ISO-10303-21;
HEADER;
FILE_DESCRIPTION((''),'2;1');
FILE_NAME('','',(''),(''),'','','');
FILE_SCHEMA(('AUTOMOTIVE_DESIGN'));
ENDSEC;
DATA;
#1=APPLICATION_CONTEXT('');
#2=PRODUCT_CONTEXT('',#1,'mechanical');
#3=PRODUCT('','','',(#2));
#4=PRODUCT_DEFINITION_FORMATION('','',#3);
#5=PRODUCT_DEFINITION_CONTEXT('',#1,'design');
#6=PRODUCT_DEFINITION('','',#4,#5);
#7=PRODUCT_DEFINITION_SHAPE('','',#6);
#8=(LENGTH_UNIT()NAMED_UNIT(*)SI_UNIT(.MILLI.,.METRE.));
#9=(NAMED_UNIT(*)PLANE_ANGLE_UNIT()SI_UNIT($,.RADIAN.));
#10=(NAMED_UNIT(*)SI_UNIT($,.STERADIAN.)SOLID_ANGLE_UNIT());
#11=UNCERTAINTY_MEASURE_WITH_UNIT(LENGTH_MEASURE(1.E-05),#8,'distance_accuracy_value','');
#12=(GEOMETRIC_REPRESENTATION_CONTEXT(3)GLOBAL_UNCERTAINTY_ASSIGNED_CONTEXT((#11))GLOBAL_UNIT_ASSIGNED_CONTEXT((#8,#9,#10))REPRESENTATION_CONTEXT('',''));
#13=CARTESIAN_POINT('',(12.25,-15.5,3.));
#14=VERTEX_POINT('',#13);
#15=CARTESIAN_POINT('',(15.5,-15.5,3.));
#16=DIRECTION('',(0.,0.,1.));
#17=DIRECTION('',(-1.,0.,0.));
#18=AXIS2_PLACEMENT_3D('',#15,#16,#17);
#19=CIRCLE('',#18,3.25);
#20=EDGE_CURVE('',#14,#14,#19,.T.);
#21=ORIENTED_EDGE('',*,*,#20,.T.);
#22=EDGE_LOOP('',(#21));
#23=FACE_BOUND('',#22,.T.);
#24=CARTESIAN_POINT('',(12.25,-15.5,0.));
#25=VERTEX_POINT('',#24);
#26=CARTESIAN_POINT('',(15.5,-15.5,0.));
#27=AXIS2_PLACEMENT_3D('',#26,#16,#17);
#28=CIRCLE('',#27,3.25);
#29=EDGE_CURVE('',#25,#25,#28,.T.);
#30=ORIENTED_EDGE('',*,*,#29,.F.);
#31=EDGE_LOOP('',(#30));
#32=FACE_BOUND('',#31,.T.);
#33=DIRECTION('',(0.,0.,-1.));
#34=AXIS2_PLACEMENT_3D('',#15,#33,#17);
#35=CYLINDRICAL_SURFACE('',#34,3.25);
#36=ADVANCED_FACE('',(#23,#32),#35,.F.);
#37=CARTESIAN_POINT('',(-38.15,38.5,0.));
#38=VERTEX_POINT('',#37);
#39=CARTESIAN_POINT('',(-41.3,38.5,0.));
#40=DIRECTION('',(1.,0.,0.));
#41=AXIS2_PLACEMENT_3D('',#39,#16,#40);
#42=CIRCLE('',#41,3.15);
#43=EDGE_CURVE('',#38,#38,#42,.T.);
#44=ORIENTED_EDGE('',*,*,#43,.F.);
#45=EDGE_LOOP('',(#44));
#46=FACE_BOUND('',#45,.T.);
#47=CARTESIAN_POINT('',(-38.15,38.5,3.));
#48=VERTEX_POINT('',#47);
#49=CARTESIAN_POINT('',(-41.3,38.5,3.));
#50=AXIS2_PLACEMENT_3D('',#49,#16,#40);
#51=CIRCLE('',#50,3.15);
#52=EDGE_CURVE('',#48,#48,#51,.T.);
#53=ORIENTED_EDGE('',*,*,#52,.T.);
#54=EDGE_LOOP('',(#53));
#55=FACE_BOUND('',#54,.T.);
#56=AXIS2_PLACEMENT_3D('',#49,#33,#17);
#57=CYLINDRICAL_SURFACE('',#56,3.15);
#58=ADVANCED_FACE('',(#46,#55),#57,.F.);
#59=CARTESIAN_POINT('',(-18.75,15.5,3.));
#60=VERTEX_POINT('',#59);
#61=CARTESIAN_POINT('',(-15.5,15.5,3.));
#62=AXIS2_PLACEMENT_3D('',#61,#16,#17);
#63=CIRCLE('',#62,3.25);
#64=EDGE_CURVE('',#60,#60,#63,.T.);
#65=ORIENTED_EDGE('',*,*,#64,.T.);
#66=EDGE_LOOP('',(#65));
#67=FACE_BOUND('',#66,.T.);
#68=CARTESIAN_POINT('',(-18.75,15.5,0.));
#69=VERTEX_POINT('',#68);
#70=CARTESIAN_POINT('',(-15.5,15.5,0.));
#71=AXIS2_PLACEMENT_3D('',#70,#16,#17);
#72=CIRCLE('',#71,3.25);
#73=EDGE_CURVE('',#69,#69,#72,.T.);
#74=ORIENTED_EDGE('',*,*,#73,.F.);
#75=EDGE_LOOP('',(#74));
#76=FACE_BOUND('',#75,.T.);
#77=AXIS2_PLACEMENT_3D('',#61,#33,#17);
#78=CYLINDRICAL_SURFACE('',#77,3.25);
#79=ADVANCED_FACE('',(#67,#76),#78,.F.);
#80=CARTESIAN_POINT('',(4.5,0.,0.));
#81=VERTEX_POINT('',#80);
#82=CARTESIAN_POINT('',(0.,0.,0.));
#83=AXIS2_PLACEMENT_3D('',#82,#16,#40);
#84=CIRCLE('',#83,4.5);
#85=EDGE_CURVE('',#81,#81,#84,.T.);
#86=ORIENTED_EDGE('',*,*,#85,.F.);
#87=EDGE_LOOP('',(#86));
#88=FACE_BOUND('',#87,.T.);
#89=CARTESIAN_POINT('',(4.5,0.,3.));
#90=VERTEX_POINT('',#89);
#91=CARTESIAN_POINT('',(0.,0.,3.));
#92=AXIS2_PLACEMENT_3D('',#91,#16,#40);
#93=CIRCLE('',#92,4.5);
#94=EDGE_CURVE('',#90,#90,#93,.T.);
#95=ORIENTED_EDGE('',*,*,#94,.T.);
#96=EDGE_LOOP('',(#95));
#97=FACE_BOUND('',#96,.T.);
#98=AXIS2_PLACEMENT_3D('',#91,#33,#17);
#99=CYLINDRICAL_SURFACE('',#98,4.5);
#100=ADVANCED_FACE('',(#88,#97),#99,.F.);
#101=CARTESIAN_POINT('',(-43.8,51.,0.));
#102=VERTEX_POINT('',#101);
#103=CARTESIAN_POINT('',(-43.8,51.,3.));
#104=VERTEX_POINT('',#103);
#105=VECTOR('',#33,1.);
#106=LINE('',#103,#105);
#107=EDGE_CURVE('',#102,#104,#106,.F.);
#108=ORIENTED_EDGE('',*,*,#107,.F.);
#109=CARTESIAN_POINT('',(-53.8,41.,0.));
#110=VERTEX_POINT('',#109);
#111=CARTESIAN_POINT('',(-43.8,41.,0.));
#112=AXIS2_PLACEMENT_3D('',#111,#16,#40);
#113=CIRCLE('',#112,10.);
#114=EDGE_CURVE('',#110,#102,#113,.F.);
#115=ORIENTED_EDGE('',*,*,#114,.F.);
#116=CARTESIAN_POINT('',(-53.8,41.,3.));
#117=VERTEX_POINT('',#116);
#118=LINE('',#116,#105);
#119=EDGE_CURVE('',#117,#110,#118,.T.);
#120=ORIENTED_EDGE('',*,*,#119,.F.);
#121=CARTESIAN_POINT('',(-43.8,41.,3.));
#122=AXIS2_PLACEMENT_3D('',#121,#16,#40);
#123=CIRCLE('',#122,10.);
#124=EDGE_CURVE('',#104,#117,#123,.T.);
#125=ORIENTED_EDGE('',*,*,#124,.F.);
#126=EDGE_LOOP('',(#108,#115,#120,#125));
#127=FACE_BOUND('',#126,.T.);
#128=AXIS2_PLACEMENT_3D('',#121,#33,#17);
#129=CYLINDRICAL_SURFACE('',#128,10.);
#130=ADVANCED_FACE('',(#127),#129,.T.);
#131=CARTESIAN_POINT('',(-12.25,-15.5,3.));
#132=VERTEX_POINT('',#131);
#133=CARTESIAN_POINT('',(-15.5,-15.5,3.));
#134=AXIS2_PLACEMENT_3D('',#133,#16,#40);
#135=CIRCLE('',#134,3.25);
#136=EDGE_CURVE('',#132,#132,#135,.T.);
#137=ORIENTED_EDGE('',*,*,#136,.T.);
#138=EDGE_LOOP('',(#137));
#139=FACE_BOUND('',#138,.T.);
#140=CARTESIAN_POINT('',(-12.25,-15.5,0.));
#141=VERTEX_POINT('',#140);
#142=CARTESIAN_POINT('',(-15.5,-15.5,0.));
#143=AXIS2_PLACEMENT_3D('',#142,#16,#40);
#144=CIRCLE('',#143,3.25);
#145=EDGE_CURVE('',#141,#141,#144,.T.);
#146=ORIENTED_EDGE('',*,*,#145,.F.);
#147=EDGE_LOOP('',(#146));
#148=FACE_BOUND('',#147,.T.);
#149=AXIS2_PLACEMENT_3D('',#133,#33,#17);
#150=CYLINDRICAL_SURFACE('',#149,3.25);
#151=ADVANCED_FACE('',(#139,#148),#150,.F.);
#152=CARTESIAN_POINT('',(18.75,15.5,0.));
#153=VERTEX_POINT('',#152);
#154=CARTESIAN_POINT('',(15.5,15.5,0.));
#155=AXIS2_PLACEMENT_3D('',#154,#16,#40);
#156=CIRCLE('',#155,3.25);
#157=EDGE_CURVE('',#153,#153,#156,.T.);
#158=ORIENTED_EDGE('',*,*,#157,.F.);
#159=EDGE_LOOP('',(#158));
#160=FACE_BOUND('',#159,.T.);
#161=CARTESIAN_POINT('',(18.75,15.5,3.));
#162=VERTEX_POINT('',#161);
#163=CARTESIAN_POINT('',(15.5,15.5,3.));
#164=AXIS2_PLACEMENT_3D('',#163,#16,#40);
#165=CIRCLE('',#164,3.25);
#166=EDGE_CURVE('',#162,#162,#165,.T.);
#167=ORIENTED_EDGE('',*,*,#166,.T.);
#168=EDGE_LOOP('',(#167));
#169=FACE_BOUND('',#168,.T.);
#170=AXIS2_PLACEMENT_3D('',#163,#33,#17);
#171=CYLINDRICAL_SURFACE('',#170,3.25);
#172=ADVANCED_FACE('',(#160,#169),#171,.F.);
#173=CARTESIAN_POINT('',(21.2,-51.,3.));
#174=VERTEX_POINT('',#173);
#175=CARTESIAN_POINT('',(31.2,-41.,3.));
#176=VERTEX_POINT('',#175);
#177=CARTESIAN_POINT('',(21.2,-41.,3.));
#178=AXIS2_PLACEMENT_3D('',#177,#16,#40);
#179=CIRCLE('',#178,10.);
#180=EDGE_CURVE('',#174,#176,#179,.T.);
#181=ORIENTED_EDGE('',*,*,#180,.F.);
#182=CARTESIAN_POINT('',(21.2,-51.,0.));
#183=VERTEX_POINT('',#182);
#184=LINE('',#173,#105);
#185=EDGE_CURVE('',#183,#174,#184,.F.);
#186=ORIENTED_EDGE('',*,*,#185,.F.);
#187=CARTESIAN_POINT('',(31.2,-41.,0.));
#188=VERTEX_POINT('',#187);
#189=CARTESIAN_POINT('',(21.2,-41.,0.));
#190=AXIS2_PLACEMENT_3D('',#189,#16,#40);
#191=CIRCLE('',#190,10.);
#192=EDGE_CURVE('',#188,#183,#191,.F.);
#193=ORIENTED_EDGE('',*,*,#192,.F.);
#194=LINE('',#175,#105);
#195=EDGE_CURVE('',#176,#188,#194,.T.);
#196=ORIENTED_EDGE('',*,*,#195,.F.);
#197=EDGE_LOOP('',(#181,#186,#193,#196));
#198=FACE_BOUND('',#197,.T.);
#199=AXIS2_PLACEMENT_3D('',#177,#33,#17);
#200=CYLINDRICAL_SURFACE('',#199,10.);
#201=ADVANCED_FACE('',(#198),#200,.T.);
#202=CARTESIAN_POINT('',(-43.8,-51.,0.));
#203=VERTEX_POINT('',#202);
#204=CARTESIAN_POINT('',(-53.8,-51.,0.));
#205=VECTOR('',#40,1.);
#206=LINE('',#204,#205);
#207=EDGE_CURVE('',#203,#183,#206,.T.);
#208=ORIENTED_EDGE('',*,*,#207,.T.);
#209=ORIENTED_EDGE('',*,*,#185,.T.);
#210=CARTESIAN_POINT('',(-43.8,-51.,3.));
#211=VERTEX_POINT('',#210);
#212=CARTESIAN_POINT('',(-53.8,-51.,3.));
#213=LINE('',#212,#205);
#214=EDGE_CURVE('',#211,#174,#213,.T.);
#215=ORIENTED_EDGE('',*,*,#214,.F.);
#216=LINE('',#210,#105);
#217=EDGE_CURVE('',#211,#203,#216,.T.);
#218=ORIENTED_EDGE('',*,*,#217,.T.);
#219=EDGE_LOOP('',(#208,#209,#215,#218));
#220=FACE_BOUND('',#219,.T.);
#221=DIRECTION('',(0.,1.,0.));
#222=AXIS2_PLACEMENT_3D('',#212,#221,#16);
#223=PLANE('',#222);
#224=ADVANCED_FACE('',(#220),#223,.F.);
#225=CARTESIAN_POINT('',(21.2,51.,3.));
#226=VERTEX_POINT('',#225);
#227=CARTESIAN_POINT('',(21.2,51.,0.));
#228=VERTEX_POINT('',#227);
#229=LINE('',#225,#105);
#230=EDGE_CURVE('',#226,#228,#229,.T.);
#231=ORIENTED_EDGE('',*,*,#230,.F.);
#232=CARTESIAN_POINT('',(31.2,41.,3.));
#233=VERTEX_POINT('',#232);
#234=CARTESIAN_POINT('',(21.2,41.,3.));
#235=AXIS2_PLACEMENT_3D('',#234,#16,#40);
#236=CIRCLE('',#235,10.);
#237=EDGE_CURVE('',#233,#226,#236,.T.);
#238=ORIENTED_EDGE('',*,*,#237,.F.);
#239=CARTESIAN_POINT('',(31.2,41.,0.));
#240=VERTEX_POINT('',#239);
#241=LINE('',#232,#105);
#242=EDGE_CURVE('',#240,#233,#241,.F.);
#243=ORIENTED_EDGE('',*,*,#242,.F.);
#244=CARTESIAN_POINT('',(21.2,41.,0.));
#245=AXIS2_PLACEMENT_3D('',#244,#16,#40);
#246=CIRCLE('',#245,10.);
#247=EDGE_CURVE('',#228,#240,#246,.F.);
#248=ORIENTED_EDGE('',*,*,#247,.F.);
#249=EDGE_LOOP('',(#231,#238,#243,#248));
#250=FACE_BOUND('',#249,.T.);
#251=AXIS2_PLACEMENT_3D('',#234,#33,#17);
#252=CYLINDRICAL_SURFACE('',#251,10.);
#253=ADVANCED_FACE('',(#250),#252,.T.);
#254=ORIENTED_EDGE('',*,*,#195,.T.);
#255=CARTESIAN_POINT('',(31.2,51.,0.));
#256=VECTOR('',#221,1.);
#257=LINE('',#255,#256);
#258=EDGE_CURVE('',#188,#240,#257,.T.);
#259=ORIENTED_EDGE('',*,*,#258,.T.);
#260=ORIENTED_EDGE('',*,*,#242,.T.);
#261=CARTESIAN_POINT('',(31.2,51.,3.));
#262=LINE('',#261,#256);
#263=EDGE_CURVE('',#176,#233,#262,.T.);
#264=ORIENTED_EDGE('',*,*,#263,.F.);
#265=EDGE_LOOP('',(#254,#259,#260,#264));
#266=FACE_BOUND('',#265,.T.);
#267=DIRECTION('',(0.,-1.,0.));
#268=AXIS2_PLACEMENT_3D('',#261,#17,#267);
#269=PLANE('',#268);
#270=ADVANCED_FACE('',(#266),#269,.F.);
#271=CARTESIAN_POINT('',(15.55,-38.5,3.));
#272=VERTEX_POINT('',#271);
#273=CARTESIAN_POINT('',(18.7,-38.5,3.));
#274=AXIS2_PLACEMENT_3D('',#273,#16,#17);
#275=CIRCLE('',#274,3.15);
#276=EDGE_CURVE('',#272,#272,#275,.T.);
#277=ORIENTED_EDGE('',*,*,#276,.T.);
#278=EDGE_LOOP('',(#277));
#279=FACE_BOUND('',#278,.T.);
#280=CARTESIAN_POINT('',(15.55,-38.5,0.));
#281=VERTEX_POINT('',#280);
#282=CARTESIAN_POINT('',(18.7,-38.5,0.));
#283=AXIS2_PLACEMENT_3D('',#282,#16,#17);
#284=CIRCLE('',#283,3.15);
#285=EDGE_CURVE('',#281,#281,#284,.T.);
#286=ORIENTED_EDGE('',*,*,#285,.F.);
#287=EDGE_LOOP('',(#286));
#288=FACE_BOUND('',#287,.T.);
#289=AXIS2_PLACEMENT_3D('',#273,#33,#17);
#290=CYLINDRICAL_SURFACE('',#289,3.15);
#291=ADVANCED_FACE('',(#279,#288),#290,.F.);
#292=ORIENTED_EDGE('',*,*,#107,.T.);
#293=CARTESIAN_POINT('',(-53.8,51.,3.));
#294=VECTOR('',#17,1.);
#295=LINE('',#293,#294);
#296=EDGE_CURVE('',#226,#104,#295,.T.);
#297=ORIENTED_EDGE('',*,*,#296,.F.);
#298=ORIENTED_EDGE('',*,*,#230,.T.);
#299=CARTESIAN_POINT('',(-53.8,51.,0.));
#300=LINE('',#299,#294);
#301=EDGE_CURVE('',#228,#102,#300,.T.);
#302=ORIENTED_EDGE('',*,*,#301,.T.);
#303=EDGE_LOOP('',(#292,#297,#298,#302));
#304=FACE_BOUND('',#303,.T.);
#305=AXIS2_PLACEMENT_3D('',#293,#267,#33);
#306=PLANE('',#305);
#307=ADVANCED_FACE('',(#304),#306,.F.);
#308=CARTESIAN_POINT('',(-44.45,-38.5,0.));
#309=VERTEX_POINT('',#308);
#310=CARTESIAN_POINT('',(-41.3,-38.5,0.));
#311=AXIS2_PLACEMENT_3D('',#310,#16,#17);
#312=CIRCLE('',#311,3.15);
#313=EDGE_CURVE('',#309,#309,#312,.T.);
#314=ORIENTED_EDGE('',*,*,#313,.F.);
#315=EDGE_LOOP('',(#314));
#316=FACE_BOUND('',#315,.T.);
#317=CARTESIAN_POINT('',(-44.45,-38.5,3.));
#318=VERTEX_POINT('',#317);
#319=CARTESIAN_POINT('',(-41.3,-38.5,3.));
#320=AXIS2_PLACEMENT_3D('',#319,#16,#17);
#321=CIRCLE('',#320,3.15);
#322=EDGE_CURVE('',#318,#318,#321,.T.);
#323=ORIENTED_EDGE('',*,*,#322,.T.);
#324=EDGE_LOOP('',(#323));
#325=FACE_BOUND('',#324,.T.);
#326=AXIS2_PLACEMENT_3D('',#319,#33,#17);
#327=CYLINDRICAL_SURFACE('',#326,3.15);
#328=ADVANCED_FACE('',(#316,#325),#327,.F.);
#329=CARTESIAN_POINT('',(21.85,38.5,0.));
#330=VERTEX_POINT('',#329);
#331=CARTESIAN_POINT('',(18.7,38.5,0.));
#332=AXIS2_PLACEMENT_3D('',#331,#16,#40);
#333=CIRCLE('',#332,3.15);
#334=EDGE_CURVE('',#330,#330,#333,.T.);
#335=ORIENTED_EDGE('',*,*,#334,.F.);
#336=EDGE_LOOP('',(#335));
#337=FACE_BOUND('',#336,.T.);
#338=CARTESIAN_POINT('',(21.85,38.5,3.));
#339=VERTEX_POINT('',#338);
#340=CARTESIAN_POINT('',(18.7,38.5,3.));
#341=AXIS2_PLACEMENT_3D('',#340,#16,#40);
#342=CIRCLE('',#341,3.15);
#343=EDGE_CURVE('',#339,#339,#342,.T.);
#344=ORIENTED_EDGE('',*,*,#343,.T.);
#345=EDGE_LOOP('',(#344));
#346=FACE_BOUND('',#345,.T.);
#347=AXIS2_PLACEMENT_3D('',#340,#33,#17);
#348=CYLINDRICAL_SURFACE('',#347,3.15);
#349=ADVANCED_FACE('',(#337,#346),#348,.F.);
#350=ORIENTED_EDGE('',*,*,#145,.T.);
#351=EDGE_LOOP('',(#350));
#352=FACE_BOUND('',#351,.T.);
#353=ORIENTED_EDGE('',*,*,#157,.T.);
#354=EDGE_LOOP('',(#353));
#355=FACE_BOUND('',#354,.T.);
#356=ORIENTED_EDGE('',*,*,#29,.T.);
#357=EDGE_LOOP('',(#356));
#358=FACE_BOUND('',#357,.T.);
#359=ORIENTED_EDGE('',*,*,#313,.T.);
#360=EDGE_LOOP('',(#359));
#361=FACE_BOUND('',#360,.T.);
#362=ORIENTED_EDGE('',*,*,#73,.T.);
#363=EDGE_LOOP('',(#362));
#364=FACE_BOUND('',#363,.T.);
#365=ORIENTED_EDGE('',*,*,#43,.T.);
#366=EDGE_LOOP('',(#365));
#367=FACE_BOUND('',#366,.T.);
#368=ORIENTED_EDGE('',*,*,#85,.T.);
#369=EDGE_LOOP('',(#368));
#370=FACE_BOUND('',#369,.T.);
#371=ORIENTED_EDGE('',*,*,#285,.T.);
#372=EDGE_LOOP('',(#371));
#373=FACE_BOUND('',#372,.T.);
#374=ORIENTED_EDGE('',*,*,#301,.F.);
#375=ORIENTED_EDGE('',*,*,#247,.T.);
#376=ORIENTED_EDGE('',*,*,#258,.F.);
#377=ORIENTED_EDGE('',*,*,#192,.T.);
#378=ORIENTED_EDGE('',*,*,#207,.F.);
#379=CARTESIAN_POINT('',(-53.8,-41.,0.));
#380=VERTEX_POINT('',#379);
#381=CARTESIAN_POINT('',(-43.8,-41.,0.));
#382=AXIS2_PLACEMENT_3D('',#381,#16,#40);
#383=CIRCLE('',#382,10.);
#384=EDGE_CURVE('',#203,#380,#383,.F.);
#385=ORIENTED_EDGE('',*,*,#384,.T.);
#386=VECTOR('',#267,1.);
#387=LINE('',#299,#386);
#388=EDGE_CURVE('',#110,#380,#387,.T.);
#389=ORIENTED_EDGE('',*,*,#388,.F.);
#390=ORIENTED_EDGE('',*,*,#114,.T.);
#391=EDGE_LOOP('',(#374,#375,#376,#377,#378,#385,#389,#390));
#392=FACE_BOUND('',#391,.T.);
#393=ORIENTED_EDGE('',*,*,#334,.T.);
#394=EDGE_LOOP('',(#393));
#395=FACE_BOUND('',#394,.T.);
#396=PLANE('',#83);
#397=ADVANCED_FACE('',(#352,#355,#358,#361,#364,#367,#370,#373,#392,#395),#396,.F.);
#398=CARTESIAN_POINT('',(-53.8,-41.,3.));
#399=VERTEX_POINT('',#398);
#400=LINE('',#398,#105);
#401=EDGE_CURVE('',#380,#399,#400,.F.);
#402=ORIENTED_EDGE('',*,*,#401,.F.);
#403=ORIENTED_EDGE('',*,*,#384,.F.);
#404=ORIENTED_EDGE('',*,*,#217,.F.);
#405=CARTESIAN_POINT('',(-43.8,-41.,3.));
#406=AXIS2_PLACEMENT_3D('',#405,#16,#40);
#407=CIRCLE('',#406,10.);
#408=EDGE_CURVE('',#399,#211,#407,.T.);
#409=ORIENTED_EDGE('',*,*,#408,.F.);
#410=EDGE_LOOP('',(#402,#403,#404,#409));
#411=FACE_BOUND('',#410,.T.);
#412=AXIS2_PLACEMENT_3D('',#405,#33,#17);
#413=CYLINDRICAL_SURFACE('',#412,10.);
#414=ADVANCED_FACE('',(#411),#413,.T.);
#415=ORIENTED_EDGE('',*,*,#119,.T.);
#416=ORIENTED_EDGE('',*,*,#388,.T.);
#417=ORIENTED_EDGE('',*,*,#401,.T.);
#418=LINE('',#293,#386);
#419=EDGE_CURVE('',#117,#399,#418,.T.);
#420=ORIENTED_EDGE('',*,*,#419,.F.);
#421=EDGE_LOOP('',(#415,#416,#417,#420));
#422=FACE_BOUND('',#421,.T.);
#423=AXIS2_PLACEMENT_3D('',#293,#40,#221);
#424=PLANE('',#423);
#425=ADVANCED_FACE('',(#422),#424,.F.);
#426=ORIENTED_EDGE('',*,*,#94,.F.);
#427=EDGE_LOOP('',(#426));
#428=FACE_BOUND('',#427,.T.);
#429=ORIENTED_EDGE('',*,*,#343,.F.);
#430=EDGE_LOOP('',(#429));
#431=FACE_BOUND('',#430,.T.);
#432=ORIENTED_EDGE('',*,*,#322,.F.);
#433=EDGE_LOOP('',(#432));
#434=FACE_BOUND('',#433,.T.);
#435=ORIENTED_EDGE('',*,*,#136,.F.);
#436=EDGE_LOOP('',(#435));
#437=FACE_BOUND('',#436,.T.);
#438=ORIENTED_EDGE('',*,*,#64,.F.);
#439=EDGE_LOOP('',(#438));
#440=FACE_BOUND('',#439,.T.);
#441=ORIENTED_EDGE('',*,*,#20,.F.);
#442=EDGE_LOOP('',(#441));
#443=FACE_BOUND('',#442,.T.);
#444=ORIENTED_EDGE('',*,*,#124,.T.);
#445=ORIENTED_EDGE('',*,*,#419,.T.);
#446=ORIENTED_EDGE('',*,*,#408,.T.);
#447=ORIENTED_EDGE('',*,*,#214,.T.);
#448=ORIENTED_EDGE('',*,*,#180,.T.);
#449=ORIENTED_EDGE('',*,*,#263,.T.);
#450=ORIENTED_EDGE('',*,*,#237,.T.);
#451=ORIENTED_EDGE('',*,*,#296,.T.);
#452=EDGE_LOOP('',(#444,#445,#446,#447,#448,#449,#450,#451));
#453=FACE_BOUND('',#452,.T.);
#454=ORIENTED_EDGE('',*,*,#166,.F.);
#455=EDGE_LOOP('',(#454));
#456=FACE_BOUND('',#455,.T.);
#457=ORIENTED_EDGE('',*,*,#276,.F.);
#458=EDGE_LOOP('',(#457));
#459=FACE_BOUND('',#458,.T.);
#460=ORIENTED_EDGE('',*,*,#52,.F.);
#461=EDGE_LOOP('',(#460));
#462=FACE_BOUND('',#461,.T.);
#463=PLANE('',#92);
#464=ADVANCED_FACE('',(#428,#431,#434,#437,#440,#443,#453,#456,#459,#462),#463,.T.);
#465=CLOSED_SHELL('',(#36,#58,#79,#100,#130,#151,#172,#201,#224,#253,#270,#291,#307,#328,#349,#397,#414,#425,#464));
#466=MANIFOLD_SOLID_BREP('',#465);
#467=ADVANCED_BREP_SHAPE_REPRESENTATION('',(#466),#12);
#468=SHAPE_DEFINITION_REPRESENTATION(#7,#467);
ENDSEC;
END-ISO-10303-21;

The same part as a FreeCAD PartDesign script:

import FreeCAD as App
import Part
import Sketcher

V = App.Vector


def edges_at(feature, points):
    """Names of the edges that pass closest to the given points."""
    edges = feature.Shape.Edges
    near = lambda p: min(range(len(edges)), key=lambda i: edges[i].distToShape(Part.Vertex(*p))[0])
    return sorted({f"Edge{near(p) + 1}" for p in points})


def add_polygon(sketch, points):
    """Adds a closed chain of lines whose ends are joined by coincident constraints."""
    first, n = sketch.GeometryCount, len(points)
    for a, b in zip(points, points[1:] + points[:1]):
        sketch.addGeometry(Part.LineSegment(App.Vector(*a, 0), App.Vector(*b, 0)), False)
    for i in range(n):
        sketch.addConstraint(Sketcher.Constraint("Coincident", first + i, 2, first + (i + 1) % n, 1))

doc = App.newDocument("Part")
body = doc.addObject("PartDesign::Body", "Body")

sketch1 = doc.addObject("Sketcher::SketchObject", "Sketch")
body.addObject(sketch1)
sketch1.AttachmentSupport = (doc.XY_Plane, [""])
sketch1.MapMode = "FlatFace"
add_polygon(sketch1, [(-53.8, 51), (-53.8, -51), (31.2, -51), (31.2, 51)])
sketch1.addGeometry(Part.Circle(V(-41.3, -38.5, 0), V(0, 0, 1), 3.1), False)
sketch1.addGeometry(Part.Circle(V(-15.5, -15.5, 0), V(0, 0, 1), 3.2), False)
sketch1.addGeometry(Part.Circle(V(18.7, -38.5, 0), V(0, 0, 1), 3.1), False)
sketch1.addGeometry(Part.Circle(V(15.5, -15.5, 0), V(0, 0, 1), 3.2), False)
sketch1.addGeometry(Part.Circle(V(-15.5, 15.5, 0), V(0, 0, 1), 3.2), False)
sketch1.addGeometry(Part.Circle(V(-41.3, 38.5, 0), V(0, 0, 1), 3.1), False)
sketch1.addGeometry(Part.Circle(V(0, 0, 0), V(0, 0, 1), 4.5), False)
sketch1.addGeometry(Part.Circle(V(15.5, 15.5, 0), V(0, 0, 1), 3.2), False)
sketch1.addGeometry(Part.Circle(V(18.7, 38.5, 0), V(0, 0, 1), 3.1), False)
sketch1.addConstraint(Sketcher.Constraint("Vertical", 0))
sketch1.addConstraint(Sketcher.Constraint("Horizontal", 1))
sketch1.addConstraint(Sketcher.Constraint("Vertical", 2))
sketch1.addConstraint(Sketcher.Constraint("Horizontal", 3))
sketch1.addConstraint(Sketcher.Constraint("Coincident", 10, 3, -1, 1))
sketch1.addConstraint(Sketcher.Constraint("Equal", 4, 6))
sketch1.addConstraint(Sketcher.Constraint("Equal", 5, 7))
sketch1.addConstraint(Sketcher.Constraint("Equal", 7, 8))
sketch1.addConstraint(Sketcher.Constraint("Equal", 6, 9))
sketch1.addConstraint(Sketcher.Constraint("Equal", 8, 11))
sketch1.addConstraint(Sketcher.Constraint("Equal", 9, 12))
sketch1.addConstraint(Sketcher.Constraint("Symmetric", 7, 3, 8, 3, -1, 1))
sketch1.addConstraint(Sketcher.Constraint("Symmetric", 5, 3, 11, 3, -1, 1))
sketch1.addConstraint(Sketcher.Constraint("Symmetric", 5, 3, 7, 3, -2))
sketch1.addConstraint(Sketcher.Constraint("Symmetric", 4, 3, 9, 3, -1))
sketch1.addConstraint(Sketcher.Constraint("Symmetric", 6, 3, 12, 3, -1))
sketch1.addConstraint(Sketcher.Constraint("Horizontal", 4, 3, 6, 3))
sketch1.addConstraint(Sketcher.Constraint("Diameter", 10, 9.0))
sketch1.addConstraint(Sketcher.Constraint("Diameter", 4, 6.3))
sketch1.addConstraint(Sketcher.Constraint("Diameter", 5, 6.5))
sketch1.addConstraint(Sketcher.Constraint("DistanceX", 1, 1, 1, 2, 85.0))
sketch1.addConstraint(Sketcher.Constraint("DistanceY", 0, 2, 0, 1, 102.0))
sketch1.addConstraint(Sketcher.Constraint("DistanceY", 0, 2, -1, 1, 51.0))
sketch1.addConstraint(Sketcher.Constraint("DistanceY", 4, 3, 5, 3, 23.0))
sketch1.addConstraint(Sketcher.Constraint("DistanceX", 4, 3, 6, 3, 60.0))
sketch1.addConstraint(Sketcher.Constraint("DistanceX", 5, 3, 7, 3, 31.0))
sketch1.addConstraint(Sketcher.Constraint("DistanceY", 5, 3, 8, 3, 31.0))
sketch1.addConstraint(Sketcher.Constraint("DistanceX", 4, 3, -1, 1, 41.3))
sketch1.addConstraint(Sketcher.Constraint("DistanceX", 0, 2, -1, 1, 53.8))
pad1 = doc.addObject("PartDesign::Pad", "Pad")
body.addObject(pad1)
pad1.Profile = sketch1
pad1.Length = 3
doc.recompute()

fillet = doc.addObject("PartDesign::Fillet", "Fillet")
body.addObject(fillet)
fillet.Base = (pad1, edges_at(pad1, [
    (-53.8, 51, 1.5),
    (31.2, 51, 1.5),
    (31.2, -51, 1.5),
    (-53.8, -51, 1.5),
]))
fillet.Radius = 10

doc.recompute()
